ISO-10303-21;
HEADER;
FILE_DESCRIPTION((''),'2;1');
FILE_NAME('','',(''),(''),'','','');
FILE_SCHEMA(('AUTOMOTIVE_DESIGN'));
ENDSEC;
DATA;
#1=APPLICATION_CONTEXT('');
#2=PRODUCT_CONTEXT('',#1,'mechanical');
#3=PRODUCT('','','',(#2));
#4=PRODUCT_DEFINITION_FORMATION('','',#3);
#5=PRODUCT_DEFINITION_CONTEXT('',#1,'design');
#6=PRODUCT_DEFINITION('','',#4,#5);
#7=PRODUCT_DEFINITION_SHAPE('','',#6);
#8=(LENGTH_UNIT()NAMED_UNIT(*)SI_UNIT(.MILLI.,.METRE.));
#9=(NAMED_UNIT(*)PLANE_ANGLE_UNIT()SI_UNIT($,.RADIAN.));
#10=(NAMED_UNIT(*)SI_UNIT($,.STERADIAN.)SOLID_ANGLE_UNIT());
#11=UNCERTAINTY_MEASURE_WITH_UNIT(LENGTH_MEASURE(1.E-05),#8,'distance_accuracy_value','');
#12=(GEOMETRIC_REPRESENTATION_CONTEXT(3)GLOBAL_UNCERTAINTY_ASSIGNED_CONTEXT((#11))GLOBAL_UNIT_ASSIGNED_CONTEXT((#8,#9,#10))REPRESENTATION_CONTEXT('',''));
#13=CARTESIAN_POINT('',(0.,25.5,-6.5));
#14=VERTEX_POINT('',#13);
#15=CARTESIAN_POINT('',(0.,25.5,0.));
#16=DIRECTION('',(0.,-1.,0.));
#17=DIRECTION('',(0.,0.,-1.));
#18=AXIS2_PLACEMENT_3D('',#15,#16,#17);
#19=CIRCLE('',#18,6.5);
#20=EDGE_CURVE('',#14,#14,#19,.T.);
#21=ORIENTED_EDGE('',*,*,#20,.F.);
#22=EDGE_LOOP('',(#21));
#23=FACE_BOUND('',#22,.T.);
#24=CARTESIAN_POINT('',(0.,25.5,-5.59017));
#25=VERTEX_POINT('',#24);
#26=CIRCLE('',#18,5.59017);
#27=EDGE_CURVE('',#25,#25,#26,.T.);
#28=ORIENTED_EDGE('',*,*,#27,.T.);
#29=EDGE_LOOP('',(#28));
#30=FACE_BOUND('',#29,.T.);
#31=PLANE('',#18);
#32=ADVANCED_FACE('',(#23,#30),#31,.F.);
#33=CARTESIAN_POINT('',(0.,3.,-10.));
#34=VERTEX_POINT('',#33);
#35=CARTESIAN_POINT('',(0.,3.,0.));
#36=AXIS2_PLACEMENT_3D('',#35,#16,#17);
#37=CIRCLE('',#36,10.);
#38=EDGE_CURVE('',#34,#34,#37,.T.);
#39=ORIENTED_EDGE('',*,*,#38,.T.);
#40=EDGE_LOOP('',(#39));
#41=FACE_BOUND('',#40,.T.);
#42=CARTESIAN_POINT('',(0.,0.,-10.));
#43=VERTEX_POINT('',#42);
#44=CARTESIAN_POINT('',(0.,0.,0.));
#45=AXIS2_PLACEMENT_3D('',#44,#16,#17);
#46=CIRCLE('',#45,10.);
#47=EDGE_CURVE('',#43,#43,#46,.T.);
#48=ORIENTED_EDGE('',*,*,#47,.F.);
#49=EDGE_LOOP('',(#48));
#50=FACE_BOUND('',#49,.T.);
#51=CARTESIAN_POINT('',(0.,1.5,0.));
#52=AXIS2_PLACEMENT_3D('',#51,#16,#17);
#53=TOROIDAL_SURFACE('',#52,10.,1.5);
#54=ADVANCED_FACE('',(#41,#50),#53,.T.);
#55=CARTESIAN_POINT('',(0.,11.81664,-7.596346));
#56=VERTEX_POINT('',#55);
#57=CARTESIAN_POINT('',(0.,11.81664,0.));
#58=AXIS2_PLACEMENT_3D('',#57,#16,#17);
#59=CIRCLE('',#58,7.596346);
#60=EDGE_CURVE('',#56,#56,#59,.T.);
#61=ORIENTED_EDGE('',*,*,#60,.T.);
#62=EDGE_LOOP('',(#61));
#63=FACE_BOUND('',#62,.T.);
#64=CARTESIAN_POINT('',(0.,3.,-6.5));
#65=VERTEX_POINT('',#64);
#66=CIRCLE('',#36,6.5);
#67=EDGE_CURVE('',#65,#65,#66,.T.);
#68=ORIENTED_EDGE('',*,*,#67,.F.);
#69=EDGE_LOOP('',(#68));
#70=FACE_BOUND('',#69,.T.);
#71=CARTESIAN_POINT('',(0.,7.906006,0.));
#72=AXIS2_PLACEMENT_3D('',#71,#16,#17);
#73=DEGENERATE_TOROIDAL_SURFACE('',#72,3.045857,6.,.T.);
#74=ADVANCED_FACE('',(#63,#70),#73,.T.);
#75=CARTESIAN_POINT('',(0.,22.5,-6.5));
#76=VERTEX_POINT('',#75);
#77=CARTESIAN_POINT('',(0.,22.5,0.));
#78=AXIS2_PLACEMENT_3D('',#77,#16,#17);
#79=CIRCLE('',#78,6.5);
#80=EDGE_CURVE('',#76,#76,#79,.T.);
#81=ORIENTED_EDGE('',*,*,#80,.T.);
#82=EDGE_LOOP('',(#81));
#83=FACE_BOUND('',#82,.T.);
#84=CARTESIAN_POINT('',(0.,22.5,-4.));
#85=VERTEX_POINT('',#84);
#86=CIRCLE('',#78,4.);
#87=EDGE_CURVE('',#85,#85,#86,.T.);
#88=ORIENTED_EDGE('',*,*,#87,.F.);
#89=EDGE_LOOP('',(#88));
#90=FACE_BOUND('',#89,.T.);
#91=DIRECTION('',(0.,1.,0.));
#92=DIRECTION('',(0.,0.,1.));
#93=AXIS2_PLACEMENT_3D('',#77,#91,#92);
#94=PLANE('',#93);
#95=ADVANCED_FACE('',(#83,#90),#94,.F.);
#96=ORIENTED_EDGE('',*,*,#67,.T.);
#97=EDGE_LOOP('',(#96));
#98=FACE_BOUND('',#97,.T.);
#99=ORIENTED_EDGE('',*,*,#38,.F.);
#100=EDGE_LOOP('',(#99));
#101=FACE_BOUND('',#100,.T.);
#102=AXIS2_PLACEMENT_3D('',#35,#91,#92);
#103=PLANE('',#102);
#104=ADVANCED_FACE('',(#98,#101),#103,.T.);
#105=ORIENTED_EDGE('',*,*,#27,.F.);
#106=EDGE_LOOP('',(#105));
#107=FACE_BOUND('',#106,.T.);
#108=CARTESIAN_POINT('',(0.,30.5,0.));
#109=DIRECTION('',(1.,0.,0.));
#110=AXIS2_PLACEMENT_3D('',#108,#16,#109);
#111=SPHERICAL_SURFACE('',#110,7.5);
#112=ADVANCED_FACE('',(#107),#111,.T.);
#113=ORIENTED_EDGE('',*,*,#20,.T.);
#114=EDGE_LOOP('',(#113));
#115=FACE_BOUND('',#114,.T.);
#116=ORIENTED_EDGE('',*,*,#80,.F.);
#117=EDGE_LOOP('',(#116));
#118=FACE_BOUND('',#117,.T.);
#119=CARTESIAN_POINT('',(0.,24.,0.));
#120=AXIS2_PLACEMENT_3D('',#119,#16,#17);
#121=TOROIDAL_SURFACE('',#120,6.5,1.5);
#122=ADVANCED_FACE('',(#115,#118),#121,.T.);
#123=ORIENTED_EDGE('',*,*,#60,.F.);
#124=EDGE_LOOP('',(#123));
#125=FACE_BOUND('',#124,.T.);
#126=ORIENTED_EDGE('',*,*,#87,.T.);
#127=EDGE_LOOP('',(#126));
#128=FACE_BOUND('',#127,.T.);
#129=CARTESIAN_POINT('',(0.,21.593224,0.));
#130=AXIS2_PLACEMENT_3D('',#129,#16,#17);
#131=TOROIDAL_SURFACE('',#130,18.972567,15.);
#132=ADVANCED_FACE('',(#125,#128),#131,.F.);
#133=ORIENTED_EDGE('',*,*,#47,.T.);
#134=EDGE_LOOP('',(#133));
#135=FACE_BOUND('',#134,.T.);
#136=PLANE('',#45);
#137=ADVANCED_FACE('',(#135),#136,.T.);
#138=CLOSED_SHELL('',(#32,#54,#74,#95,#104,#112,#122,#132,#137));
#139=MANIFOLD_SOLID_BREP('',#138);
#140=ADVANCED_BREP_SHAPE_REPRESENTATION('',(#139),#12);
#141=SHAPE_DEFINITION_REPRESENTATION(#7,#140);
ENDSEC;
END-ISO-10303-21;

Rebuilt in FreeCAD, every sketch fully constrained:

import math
import FreeCAD as App
import Part
import Sketcher

V = App.Vector

doc = App.newDocument("Part")
body = doc.addObject("PartDesign::Body", "Body")

# Sketch on XY plane
sketch1 = body.newObject("Sketcher::SketchObject", "Sketch")
sketch1.AttachmentSupport = (doc.getObject("XY_Plane"), [""])
sketch1.MapMode = "FlatFace"
sketch1.addGeometry([
    Part.LineSegment(V(-10, 0, 0), V(0, 0, 0)),  # 0
    Part.LineSegment(V(0, 0, 0), V(0, 38, 0)),  # 1
    Part.ArcOfCircle(Part.Circle(V(0, 30.5, 0), V(0, 0, 1), 7.5), math.radians(90), math.radians(221.810315)),  # 2
    Part.LineSegment(V(-5.59017, 25.5, 0), V(-6.5, 25.5, 0)),  # 3
    Part.ArcOfCircle(Part.Circle(V(-6.5, 24, 0), V(0, 0, 1), 1.5), math.radians(90), math.radians(270)),  # 4
    Part.LineSegment(V(-6.5, 22.5, 0), V(-4, 22.5, 0)),  # 5
    Part.ArcOfCircle(Part.Circle(V(-18.972567, 21.593224, 0), V(0, 0, 1), 15), math.radians(-40.675357), math.radians(3.465742)),  # 6
    Part.ArcOfCircle(Part.Circle(V(-3.045857, 7.906006, 0), V(0, 0, 1), 6), math.radians(139.324643), math.radians(234.852001)),  # 7
    Part.LineSegment(V(-6.5, 3, 0), V(-10, 3, 0)),  # 8
    Part.ArcOfCircle(Part.Circle(V(-10, 1.5, 0), V(0, 0, 1), 1.5), math.radians(90), math.radians(270)),  # 9
], False)
sketch1.addConstraint([
    Sketcher.Constraint("Coincident", 0, 2, 1, 1),
    Sketcher.Constraint("Coincident", 1, 2, 2, 1),
    Sketcher.Constraint("Coincident", 2, 2, 3, 1),
    Sketcher.Constraint("Tangent", 3, 2, 4, 1),
    Sketcher.Constraint("Tangent", 4, 2, 5, 1),
    Sketcher.Constraint("Coincident", 5, 2, 6, 2),
    Sketcher.Constraint("Tangent", 6, 1, 7, 1),
    Sketcher.Constraint("Coincident", 7, 2, 8, 1),
    Sketcher.Constraint("Tangent", 8, 2, 9, 1),
    Sketcher.Constraint("Tangent", 9, 2, 0, 1),
    Sketcher.Constraint("Horizontal", 0),
    Sketcher.Constraint("Vertical", 1),
    Sketcher.Constraint("Horizontal", 3),
    Sketcher.Constraint("Horizontal", 5),
    Sketcher.Constraint("Horizontal", 8),
    Sketcher.Constraint("Coincident", 0, 2, -1, 1),
    Sketcher.Constraint("Equal", 4, 9),
    Sketcher.Constraint("PointOnObject", 2, 3, -2),
    Sketcher.Constraint("Vertical", 4, 2, 7, 2),
    Sketcher.Constraint("Radius", 6, 15.0),
    Sketcher.Constraint("Radius", 7, 6.0),
    Sketcher.Constraint("Radius", 2, 7.5),
    Sketcher.Constraint("Radius", 4, 1.5),
    Sketcher.Constraint("DistanceX", 0, 1, 0, 2, 10.0),
    Sketcher.Constraint("DistanceY", 1, 1, 1, 2, 38.0),
    Sketcher.Constraint("DistanceX", 5, 1, 5, 2, 2.5),
    Sketcher.Constraint("DistanceX", 8, 2, 8, 1, 3.5),
    Sketcher.Constraint("DistanceY", -1, 1, 4, 3, 24.0),
    Sketcher.Constraint("DistanceY", -1, 1, 6, 1, 11.81664),
])
revolution = body.newObject("PartDesign::Revolution", "Revolution")
revolution.Profile = sketch1
revolution.ReferenceAxis = (sketch1, ["V_Axis"])
revolution.Angle = 360

doc.recompute()
